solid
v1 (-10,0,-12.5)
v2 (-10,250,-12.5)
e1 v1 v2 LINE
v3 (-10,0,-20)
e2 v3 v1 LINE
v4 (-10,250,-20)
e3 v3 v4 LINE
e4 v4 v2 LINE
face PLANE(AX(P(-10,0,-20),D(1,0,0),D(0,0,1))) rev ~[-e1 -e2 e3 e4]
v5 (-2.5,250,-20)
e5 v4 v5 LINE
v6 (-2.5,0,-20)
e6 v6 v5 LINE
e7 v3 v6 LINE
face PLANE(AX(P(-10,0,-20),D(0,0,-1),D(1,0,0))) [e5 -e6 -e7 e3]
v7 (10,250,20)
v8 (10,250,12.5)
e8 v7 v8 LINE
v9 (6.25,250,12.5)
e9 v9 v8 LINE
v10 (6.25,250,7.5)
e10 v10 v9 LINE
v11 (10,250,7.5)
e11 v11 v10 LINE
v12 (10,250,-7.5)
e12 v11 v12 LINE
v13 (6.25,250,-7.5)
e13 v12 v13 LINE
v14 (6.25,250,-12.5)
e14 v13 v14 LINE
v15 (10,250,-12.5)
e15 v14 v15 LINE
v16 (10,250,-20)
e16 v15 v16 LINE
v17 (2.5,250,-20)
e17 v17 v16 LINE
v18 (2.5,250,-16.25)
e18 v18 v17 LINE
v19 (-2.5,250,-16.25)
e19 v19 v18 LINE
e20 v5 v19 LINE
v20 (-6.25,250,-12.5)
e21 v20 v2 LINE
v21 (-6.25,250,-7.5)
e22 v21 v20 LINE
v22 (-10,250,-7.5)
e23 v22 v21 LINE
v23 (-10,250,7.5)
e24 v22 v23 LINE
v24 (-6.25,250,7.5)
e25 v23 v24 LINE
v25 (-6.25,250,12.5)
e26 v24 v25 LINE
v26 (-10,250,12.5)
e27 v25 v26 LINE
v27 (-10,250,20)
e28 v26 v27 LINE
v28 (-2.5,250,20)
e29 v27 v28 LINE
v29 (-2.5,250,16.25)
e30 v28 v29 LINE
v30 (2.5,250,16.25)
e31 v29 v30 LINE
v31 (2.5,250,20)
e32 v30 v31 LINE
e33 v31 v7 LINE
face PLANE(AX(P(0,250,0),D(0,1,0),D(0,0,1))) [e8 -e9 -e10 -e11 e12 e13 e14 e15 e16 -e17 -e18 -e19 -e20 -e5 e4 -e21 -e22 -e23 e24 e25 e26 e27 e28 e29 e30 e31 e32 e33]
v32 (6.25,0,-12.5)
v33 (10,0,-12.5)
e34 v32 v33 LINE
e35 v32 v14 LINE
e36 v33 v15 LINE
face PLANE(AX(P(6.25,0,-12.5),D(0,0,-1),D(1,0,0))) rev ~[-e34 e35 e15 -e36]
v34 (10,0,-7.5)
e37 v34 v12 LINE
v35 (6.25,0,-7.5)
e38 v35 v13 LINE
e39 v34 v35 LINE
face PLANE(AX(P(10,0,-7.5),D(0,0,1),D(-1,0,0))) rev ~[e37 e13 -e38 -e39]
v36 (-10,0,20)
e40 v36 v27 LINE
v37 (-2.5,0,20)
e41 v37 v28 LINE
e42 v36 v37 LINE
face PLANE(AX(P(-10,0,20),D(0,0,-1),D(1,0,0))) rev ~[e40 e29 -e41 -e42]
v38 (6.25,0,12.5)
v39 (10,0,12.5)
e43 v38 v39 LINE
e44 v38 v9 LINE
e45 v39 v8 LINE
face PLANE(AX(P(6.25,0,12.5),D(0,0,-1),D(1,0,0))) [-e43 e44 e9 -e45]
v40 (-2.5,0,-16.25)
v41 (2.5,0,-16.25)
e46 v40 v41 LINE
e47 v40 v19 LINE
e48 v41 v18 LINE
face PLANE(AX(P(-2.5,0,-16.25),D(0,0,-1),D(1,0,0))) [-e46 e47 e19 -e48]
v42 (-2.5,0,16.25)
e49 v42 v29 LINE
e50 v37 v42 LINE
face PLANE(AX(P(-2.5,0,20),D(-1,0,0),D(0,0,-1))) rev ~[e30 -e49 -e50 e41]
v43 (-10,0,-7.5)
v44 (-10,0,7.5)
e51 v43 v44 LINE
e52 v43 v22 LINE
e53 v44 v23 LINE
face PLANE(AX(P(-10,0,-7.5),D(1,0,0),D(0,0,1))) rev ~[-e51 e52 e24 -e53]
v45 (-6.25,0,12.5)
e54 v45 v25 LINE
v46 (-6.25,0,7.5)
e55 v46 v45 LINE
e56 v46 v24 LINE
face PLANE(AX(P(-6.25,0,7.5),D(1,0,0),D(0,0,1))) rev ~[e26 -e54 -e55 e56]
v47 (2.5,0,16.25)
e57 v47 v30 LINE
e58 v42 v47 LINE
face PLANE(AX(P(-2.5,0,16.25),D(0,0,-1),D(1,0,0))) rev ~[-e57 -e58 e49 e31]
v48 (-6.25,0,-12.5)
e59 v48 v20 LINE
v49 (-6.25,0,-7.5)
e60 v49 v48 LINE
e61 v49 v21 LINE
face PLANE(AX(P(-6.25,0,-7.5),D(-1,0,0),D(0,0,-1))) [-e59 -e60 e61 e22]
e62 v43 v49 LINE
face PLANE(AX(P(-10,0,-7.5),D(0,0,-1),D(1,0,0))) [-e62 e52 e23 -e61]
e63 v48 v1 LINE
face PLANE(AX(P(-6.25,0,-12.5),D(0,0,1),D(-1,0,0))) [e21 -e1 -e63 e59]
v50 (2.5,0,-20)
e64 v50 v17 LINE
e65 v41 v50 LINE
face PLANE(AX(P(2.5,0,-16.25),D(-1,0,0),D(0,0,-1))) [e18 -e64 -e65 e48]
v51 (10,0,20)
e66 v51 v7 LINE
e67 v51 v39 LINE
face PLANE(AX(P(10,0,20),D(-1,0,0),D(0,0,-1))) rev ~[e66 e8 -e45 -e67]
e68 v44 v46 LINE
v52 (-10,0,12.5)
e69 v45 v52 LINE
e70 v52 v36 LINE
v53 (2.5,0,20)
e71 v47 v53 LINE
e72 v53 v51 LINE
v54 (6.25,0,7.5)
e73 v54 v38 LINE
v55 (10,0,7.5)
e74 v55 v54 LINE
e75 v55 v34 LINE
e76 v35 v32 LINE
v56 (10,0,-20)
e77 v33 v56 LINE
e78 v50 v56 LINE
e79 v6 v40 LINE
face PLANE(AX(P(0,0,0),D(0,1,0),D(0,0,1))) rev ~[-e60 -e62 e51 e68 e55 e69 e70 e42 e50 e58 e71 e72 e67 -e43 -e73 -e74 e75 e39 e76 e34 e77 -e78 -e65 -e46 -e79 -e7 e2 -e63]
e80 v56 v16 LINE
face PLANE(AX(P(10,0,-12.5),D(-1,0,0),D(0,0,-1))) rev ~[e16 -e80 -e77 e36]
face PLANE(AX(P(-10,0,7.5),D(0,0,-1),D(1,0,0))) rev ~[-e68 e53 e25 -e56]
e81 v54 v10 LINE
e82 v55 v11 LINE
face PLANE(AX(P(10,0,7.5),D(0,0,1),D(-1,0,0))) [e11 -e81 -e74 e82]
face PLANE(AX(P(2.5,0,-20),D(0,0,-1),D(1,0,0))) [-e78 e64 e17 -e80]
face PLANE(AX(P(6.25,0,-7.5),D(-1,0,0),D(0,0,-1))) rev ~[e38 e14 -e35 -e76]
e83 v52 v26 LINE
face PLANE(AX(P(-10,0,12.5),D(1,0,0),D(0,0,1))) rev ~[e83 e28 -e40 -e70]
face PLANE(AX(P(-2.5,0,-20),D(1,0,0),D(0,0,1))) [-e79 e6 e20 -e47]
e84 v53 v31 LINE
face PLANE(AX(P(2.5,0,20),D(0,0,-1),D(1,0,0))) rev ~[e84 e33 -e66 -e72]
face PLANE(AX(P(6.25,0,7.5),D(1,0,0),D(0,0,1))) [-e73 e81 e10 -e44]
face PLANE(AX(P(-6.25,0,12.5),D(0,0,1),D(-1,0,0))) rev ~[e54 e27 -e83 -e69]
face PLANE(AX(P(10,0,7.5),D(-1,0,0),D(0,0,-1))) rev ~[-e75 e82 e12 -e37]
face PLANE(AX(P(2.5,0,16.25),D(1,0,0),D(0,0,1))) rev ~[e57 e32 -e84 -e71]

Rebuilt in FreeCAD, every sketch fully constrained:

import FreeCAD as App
import Part
import Sketcher
from FreeCAD import Vector
Q = App.Units.Quantity


def add_polygon(sketch, points):
    """Adds a closed chain of lines whose ends are joined by coincident constraints."""
    first, n = sketch.GeometryCount, len(points)
    for a, b in zip(points, points[1:] + points[:1]):
        sketch.addGeometry(Part.LineSegment(App.Vector(*a, 0), App.Vector(*b, 0)), False)
    for i in range(n):
        sketch.addConstraint(Sketcher.Constraint("Coincident", first + i, 2, first + (i + 1) % n, 1))

doc = App.newDocument("Part")
params = doc.addObject("Spreadsheet::Sheet", "Params")
for row, (alias, value) in enumerate([
    ("sketch1_width", "5 mm"),
    ("sketch1_height", "15 mm"),
    ("sketch1_width2", "7.5 mm"),
    ("sketch1_width3", "3.75 mm"),
    ("pad1_length", "250 mm"),
], start=1):
    params.set(f"A{row}", alias)
    params.set(f"B{row}", "=" + value)
    params.setAlias(f"B{row}", alias)

body = doc.addObject("PartDesign::Body", "Body")

# Sketch on XZ plane
sketch1 = body.newObject("Sketcher::SketchObject", "Sketch")
sketch1.AttachmentSupport = (doc.getObject("XZ_Plane"), [""])
sketch1.MapMode = "FlatFace"
add_polygon(sketch1, [(-6.2, 12.5), (-6.2, 7.5), (-10, 7.5), (-10, -7.5), (-6.2, -7.5), (-6.2, -12.5), (-10, -12.5), (-10, -20), (-2.5, -20), (-2.5, -16.2), (2.5, -16.2), (2.5, -20), (10, -20), (10, -12.5), (6.2, -12.5), (6.2, -7.5), (10, -7.5), (10, 7.5), (6.2, 7.5), (6.2, 12.5), (10, 12.5), (10, 20), (2.5, 20), (2.5, 16.2), (-2.5, 16.2), (-2.5, 20), (-10, 20), (-10, 12.5)])  # lines 0-27
sketch1.addConstraint([
    Sketcher.Constraint("Vertical", 0),
    Sketcher.Constraint("Horizontal", 1),
    Sketcher.Constraint("Vertical", 2),
    Sketcher.Constraint("Horizontal", 3),
    Sketcher.Constraint("Vertical", 4),
    Sketcher.Constraint("Horizontal", 5),
    Sketcher.Constraint("Vertical", 6),
    Sketcher.Constraint("Horizontal", 7),
    Sketcher.Constraint("Vertical", 8),
    Sketcher.Constraint("Horizontal", 9),
    Sketcher.Constraint("Vertical", 10),
    Sketcher.Constraint("Horizontal", 11),
    Sketcher.Constraint("Vertical", 12),
    Sketcher.Constraint("Horizontal", 13),
    Sketcher.Constraint("Vertical", 14),
    Sketcher.Constraint("Horizontal", 15),
    Sketcher.Constraint("Vertical", 16),
    Sketcher.Constraint("Horizontal", 17),
    Sketcher.Constraint("Vertical", 18),
    Sketcher.Constraint("Horizontal", 19),
    Sketcher.Constraint("Vertical", 20),
    Sketcher.Constraint("Horizontal", 21),
    Sketcher.Constraint("Vertical", 22),
    Sketcher.Constraint("Horizontal", 23),
    Sketcher.Constraint("Vertical", 24),
    Sketcher.Constraint("Horizontal", 25),
    Sketcher.Constraint("Vertical", 26),
    Sketcher.Constraint("Horizontal", 27),
    Sketcher.Constraint("Symmetric", 0, 2, 14, 2, -1, 1),
    Sketcher.Constraint("Symmetric", 2, 2, 16, 2, -1, 1),
    Sketcher.Constraint("Symmetric", 4, 2, 18, 2, -1, 1),
    Sketcher.Constraint("Symmetric", 6, 2, 20, 2, -1, 1),
    Sketcher.Constraint("Symmetric", 8, 2, 22, 2, -1, 1),
    Sketcher.Constraint("Symmetric", 10, 2, 24, 2, -1, 1),
    Sketcher.Constraint("Symmetric", 12, 2, 26, 2, -1, 1),
    Sketcher.Constraint("Symmetric", 7, 2, 10, 2, -2),
    Sketcher.Constraint("Symmetric", 5, 2, 12, 2, -2),
    Sketcher.Constraint("Symmetric", 3, 2, 14, 2, -2),
    Sketcher.Constraint("Vertical", 2, 2, 5, 2),
    Sketcher.Constraint("Equal", 23, 0),
    Sketcher.Constraint("Equal", 25, 6),
    Sketcher.Constraint("Equal", 27, 8),
    Sketcher.Constraint("DistanceX", 9, 1, 9, 2, Q("5 mm")),
    Sketcher.Constraint("DistanceY", 2, 2, 2, 1, Q("15 mm")),
    Sketcher.Constraint("DistanceX", 7, 1, 7, 2, Q("7.5 mm")),
    Sketcher.Constraint("DistanceX", 1, 2, 1, 1, Q("3.75 mm")),
])
sketch1.setExpression("Constraints[70]", "Params.sketch1_width")
sketch1.setExpression("Constraints[71]", "Params.sketch1_height")
sketch1.setExpression("Constraints[72]", "Params.sketch1_width2")
sketch1.setExpression("Constraints[73]", "Params.sketch1_width3")
pad1 = body.newObject("PartDesign::Pad", "Pad")
pad1.Profile = sketch1
pad1.setExpression("Length", "Params.pad1_length")
pad1.Reversed = True

doc.recompute()
